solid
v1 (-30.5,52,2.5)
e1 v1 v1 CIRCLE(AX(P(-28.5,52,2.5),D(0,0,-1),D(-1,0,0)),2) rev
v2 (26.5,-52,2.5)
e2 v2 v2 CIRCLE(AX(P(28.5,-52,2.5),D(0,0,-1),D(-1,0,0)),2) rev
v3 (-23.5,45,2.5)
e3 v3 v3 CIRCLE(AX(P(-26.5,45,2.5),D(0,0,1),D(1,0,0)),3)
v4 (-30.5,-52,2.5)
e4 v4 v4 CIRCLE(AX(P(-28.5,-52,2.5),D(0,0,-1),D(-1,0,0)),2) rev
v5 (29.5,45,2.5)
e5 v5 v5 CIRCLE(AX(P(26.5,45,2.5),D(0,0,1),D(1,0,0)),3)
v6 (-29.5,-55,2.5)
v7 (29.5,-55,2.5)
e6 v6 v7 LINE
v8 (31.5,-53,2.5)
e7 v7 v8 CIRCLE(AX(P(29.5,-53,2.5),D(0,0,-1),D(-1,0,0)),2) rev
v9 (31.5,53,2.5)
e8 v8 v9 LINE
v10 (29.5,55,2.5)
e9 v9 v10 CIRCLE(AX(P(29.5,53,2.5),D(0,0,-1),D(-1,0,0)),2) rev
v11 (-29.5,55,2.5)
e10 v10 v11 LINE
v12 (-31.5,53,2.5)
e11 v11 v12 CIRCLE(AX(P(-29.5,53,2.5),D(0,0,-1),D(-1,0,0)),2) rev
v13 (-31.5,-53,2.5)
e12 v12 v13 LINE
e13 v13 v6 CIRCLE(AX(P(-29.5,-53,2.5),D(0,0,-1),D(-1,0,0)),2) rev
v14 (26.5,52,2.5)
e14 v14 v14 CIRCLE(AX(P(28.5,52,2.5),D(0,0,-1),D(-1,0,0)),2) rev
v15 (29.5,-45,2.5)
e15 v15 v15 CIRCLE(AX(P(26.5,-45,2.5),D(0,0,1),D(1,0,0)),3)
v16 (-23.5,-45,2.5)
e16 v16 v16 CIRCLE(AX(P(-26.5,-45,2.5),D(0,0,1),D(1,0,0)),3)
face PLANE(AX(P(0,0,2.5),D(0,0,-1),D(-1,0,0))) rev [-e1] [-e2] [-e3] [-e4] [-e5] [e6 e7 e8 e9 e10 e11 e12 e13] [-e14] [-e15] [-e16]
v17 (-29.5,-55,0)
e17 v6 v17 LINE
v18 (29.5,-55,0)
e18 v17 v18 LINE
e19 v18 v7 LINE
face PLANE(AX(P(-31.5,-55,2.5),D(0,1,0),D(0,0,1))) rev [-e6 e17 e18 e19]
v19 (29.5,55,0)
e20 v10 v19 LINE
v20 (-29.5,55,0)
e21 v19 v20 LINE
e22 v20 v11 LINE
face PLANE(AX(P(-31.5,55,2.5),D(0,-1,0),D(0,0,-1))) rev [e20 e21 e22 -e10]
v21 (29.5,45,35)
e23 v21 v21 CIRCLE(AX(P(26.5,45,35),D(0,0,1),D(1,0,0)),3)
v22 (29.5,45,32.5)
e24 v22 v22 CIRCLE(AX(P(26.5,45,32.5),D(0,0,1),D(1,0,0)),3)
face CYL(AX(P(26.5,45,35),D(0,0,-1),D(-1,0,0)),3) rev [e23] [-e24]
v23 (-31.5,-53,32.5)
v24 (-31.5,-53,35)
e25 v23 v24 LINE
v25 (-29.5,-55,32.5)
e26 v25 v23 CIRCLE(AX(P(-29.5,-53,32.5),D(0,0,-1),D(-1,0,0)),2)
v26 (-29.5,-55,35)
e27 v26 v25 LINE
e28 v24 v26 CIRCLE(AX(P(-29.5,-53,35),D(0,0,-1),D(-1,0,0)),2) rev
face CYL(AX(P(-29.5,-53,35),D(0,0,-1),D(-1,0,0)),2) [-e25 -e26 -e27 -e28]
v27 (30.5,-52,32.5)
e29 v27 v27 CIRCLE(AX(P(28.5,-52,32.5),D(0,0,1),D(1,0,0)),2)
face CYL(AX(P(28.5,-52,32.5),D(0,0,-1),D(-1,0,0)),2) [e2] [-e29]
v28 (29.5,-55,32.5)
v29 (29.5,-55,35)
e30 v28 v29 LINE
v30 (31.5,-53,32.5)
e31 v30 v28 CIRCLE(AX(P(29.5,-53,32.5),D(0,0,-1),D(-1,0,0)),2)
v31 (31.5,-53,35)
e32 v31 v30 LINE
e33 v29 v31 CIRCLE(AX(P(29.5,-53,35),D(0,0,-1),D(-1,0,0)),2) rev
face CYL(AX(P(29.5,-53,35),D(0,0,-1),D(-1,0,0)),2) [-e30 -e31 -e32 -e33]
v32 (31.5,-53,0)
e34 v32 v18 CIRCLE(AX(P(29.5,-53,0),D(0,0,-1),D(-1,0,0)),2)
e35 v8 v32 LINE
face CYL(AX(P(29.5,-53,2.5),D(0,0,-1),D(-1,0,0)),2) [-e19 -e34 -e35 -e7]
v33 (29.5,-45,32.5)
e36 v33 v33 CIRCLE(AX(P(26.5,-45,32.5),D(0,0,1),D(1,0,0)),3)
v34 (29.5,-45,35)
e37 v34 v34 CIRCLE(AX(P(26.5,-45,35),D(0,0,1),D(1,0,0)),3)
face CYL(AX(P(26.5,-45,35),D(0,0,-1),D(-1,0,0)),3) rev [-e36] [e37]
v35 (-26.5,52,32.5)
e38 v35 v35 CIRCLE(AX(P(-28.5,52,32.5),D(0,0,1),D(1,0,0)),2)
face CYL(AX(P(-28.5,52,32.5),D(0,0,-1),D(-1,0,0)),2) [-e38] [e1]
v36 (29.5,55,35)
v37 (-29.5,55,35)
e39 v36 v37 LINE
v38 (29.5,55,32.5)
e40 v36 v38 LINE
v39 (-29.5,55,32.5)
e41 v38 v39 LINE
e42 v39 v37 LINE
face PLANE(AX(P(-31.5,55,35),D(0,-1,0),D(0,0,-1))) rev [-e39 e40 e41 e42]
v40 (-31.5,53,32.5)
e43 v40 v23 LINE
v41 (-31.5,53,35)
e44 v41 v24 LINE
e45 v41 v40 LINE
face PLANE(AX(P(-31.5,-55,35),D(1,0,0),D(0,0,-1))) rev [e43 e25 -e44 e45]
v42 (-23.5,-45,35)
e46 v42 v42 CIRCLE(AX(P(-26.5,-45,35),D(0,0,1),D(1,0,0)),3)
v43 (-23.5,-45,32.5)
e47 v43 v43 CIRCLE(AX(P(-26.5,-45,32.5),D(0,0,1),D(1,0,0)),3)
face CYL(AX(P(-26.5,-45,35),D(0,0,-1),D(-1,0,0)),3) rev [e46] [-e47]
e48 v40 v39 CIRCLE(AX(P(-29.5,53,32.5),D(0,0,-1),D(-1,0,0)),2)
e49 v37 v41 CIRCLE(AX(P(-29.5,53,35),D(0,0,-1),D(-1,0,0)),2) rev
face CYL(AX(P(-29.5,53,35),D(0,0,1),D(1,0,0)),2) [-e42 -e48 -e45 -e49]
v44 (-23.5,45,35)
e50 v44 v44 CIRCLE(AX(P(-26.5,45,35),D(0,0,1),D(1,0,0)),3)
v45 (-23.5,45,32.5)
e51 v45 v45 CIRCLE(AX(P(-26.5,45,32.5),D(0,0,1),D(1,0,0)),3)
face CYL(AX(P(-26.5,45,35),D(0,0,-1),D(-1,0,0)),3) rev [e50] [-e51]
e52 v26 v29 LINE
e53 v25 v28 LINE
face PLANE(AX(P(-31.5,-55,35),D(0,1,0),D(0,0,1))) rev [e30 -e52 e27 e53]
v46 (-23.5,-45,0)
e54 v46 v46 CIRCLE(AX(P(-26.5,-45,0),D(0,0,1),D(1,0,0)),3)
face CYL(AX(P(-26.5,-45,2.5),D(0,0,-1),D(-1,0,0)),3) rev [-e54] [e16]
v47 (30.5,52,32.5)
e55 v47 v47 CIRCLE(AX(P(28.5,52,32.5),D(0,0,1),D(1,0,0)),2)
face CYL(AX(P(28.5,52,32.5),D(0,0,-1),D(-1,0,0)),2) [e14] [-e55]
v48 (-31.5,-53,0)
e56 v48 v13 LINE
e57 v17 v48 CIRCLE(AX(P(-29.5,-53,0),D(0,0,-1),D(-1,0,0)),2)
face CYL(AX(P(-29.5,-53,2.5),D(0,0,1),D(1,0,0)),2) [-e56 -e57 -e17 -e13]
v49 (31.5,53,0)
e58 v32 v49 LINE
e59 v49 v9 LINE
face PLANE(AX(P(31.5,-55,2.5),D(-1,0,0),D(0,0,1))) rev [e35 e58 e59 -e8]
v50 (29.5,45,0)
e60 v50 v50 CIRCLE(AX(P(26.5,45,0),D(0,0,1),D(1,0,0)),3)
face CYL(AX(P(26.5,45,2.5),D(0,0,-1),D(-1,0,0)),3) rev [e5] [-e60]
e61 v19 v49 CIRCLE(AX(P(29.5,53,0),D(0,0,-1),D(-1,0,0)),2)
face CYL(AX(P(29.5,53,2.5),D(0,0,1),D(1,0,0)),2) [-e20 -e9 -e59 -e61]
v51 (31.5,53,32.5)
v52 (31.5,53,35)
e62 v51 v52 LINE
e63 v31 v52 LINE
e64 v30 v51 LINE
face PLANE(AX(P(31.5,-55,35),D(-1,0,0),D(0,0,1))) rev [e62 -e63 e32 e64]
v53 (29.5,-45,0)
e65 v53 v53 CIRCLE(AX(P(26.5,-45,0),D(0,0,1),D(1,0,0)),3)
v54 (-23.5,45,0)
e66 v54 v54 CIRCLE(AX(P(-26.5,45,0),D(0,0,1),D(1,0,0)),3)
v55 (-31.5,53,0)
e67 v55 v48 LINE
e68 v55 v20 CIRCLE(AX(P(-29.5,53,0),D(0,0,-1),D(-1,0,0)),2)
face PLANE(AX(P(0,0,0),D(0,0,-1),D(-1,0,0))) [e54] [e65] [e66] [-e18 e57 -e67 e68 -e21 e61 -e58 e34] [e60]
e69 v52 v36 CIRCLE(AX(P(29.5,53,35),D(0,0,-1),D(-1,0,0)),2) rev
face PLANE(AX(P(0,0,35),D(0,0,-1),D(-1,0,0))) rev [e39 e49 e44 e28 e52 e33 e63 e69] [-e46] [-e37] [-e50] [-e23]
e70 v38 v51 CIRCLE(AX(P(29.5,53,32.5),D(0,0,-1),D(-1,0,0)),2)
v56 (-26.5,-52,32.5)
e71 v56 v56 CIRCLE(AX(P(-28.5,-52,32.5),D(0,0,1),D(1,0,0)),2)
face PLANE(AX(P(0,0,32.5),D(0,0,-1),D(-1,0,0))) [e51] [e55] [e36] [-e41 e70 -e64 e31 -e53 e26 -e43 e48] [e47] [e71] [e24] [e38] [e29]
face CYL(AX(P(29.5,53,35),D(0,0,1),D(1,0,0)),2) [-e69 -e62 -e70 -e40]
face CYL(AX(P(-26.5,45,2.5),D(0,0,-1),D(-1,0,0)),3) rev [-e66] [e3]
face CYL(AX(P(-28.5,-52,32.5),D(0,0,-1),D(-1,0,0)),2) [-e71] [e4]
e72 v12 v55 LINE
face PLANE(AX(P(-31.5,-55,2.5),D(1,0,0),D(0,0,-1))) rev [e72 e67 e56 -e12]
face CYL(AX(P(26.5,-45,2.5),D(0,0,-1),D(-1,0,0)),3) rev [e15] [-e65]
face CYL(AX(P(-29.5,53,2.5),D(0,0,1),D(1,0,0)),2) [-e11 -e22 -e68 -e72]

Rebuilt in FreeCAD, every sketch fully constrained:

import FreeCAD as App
import Part
import Sketcher
from FreeCAD import Vector


def edges_at(feature, points):
    """Names of the edges that pass closest to the given points."""
    edges = feature.Shape.Edges
    near = lambda p: min(range(len(edges)), key=lambda i: edges[i].distToShape(Part.Vertex(*p))[0])
    return sorted({f"Edge{near(p) + 1}" for p in points})

doc = App.newDocument("Part")
body = doc.addObject("PartDesign::Body", "Body")

# Sketch on XY plane
sketch1 = body.newObject("Sketcher::SketchObject", "Sketch")
sketch1.AttachmentSupport = (doc.getObject("XY_Plane"), [""])
sketch1.MapMode = "FlatFace"
sketch1.addGeometry([
    Part.LineSegment(Vector(-31.5, 55, 0), Vector(-31.5, -55, 0)),  # 0
    Part.LineSegment(Vector(-31.5, -55, 0), Vector(31.5, -55, 0)),  # 1
    Part.LineSegment(Vector(31.5, -55, 0), Vector(31.5, 55, 0)),  # 2
    Part.LineSegment(Vector(31.5, 55, 0), Vector(-31.5, 55, 0)),  # 3
    Part.Circle(Vector(-26.5, -45, 0), Vector(0, 0, 1), 3),  # 4
    Part.Circle(Vector(26.5, -45, 0), Vector(0, 0, 1), 3),  # 5
    Part.Circle(Vector(-26.5, 45, 0), Vector(0, 0, 1), 3),  # 6
    Part.Circle(Vector(26.5, 45, 0), Vector(0, 0, 1), 3),  # 7
], False)
sketch1.addConstraint([
    Sketcher.Constraint("Coincident", 0, 2, 1, 1),
    Sketcher.Constraint("Coincident", 1, 2, 2, 1),
    Sketcher.Constraint("Coincident", 2, 2, 3, 1),
    Sketcher.Constraint("Coincident", 3, 2, 0, 1),
    Sketcher.Constraint("Vertical", 0),
    Sketcher.Constraint("Horizontal", 1),
    Sketcher.Constraint("Vertical", 2),
    Sketcher.Constraint("Horizontal", 3),
    Sketcher.Constraint("Equal", 4, 5),
    Sketcher.Constraint("Equal", 5, 6),
    Sketcher.Constraint("Equal", 6, 7),
    Sketcher.Constraint("Symmetric", 5, 3, 6, 3, -1, 1),
    Sketcher.Constraint("Symmetric", 4, 3, 7, 3, -1, 1),
    Sketcher.Constraint("Symmetric", 0, 2, 2, 2, -1, 1),
    Sketcher.Constraint("Symmetric", 4, 3, 5, 3, -2),
    Sketcher.Constraint("Diameter", 4, 6.0),
    Sketcher.Constraint("DistanceX", 1, 1, 1, 2, 63.0),
    Sketcher.Constraint("DistanceY", 0, 2, 0, 1, 110.0),
    Sketcher.Constraint("DistanceY", 4, 3, -1, 1, 45.0),
    Sketcher.Constraint("DistanceX", 4, 3, 5, 3, 53.0),
])
pad1 = body.newObject("PartDesign::Pad", "Pad")
pad1.Profile = sketch1
pad1.Length = 2.5

# Sketch on XY plane
sketch2 = body.newObject("Sketcher::SketchObject", "Sketch001")
sketch2.AttachmentSupport = (doc.getObject("XY_Plane"), [""])
sketch2.MapMode = "FlatFace"
sketch2.AttachmentOffset = App.Placement(Vector(0, 0, 2.5), App.Rotation())
sketch2.addGeometry([
    Part.Circle(Vector(-28.5, 52, 0), Vector(0, 0, 1), 2),
    Part.Circle(Vector(28.5, 52, 0), Vector(0, 0, 1), 2),
    Part.Circle(Vector(28.5, -52, 0), Vector(0, 0, 1), 2),
    Part.Circle(Vector(-28.5, -52, 0), Vector(0, 0, 1), 2),
], False)
sketch2.addConstraint([
    Sketcher.Constraint("Equal", 0, 1),
    Sketcher.Constraint("Equal", 1, 2),
    Sketcher.Constraint("Equal", 2, 3),
    Sketcher.Constraint("Symmetric", 0, 3, 2, 3, -1, 1),
    Sketcher.Constraint("Symmetric", 1, 3, 3, 3, -1, 1),
    Sketcher.Constraint("Symmetric", 0, 3, 1, 3, -2),
    Sketcher.Constraint("Diameter", 0, 4.0),
    Sketcher.Constraint("DistanceY", -1, 1, 0, 3, 52.0),
    Sketcher.Constraint("DistanceX", 0, 3, 1, 3, 57.0),
])
pad2 = body.newObject("PartDesign::Pad", "Pad001")
pad2.Profile = sketch2
pad2.Length = 30
doc.recompute()

fillet = body.newObject("PartDesign::Fillet", "Fillet")
fillet.Base = (pad2, edges_at(pad2, [(31.5, -55, 1.25)]))
fillet.Radius = 2
doc.recompute()

fillet2 = body.newObject("PartDesign::Fillet", "Fillet001")
fillet2.Base = (fillet, edges_at(fillet, [(31.5, 55, 1.25)]))
fillet2.Radius = 2
doc.recompute()

fillet3 = body.newObject("PartDesign::Fillet", "Fillet002")
fillet3.Base = (fillet2, edges_at(fillet2, [(-31.5, 55, 1.25)]))
fillet3.Radius = 2
doc.recompute()

fillet4 = body.newObject("PartDesign::Fillet", "Fillet003")
fillet4.Base = (fillet3, edges_at(fillet3, [(-31.5, -55, 1.25)]))
fillet4.Radius = 2

# Sketch on XY plane
sketch3 = body.newObject("Sketcher::SketchObject", "Sketch002")
sketch3.AttachmentSupport = (doc.getObject("XY_Plane"), [""])
sketch3.MapMode = "FlatFace"
sketch3.AttachmentOffset = App.Placement(Vector(0, 0, 32.5), App.Rotation())
sketch3.addGeometry([
    Part.LineSegment(Vector(-31.5, 55, 0), Vector(-31.5, -55, 0)),  # 0
    Part.LineSegment(Vector(-31.5, -55, 0), Vector(31.5, -55, 0)),  # 1
    Part.LineSegment(Vector(31.5, -55, 0), Vector(31.5, 55, 0)),  # 2
    Part.LineSegment(Vector(31.5, 55, 0), Vector(-31.5, 55, 0)),  # 3
    Part.Circle(Vector(-26.5, -45, 0), Vector(0, 0, 1), 3),  # 4
    Part.Circle(Vector(26.5, -45, 0), Vector(0, 0, 1), 3),  # 5
    Part.Circle(Vector(-26.5, 45, 0), Vector(0, 0, 1), 3),  # 6
    Part.Circle(Vector(26.5, 45, 0), Vector(0, 0, 1), 3),  # 7
], False)
sketch3.addConstraint([
    Sketcher.Constraint("Coincident", 0, 2, 1, 1),
    Sketcher.Constraint("Coincident", 1, 2, 2, 1),
    Sketcher.Constraint("Coincident", 2, 2, 3, 1),
    Sketcher.Constraint("Coincident", 3, 2, 0, 1),
    Sketcher.Constraint("Vertical", 0),
    Sketcher.Constraint("Horizontal", 1),
    Sketcher.Constraint("Vertical", 2),
    Sketcher.Constraint("Horizontal", 3),
    Sketcher.Constraint("Equal", 4, 5),
    Sketcher.Constraint("Equal", 5, 6),
    Sketcher.Constraint("Equal", 6, 7),
    Sketcher.Constraint("Symmetric", 5, 3, 6, 3, -1, 1),
    Sketcher.Constraint("Symmetric", 4, 3, 7, 3, -1, 1),
    Sketcher.Constraint("Symmetric", 0, 2, 2, 2, -1, 1),
    Sketcher.Constraint("Symmetric", 4, 3, 5, 3, -2),
    Sketcher.Constraint("Diameter", 4, 6.0),
    Sketcher.Constraint("DistanceX", 1, 1, 1, 2, 63.0),
    Sketcher.Constraint("DistanceY", 0, 2, 0, 1, 110.0),
    Sketcher.Constraint("DistanceY", 4, 3, -1, 1, 45.0),
    Sketcher.Constraint("DistanceX", 4, 3, 5, 3, 53.0),
])
pad3 = body.newObject("PartDesign::Pad", "Pad002")
pad3.Profile = sketch3
pad3.Length = 2.5
doc.recompute()

fillet5 = body.newObject("PartDesign::Fillet", "Fillet004")
fillet5.Base = (pad3, edges_at(pad3, [(31.5, 55, 33.75)]))
fillet5.Radius = 2
doc.recompute()

fillet6 = body.newObject("PartDesign::Fillet", "Fillet005")
fillet6.Base = (fillet5, edges_at(fillet5, [(31.5, -55, 33.75)]))
fillet6.Radius = 2
doc.recompute()

fillet7 = body.newObject("PartDesign::Fillet", "Fillet006")
fillet7.Base = (fillet6, edges_at(fillet6, [(-31.5, -55, 33.75)]))
fillet7.Radius = 2
doc.recompute()

fillet8 = body.newObject("PartDesign::Fillet", "Fillet007")
fillet8.Base = (fillet7, edges_at(fillet7, [(-31.5, 55, 33.75)]))
fillet8.Radius = 2

doc.recompute()
